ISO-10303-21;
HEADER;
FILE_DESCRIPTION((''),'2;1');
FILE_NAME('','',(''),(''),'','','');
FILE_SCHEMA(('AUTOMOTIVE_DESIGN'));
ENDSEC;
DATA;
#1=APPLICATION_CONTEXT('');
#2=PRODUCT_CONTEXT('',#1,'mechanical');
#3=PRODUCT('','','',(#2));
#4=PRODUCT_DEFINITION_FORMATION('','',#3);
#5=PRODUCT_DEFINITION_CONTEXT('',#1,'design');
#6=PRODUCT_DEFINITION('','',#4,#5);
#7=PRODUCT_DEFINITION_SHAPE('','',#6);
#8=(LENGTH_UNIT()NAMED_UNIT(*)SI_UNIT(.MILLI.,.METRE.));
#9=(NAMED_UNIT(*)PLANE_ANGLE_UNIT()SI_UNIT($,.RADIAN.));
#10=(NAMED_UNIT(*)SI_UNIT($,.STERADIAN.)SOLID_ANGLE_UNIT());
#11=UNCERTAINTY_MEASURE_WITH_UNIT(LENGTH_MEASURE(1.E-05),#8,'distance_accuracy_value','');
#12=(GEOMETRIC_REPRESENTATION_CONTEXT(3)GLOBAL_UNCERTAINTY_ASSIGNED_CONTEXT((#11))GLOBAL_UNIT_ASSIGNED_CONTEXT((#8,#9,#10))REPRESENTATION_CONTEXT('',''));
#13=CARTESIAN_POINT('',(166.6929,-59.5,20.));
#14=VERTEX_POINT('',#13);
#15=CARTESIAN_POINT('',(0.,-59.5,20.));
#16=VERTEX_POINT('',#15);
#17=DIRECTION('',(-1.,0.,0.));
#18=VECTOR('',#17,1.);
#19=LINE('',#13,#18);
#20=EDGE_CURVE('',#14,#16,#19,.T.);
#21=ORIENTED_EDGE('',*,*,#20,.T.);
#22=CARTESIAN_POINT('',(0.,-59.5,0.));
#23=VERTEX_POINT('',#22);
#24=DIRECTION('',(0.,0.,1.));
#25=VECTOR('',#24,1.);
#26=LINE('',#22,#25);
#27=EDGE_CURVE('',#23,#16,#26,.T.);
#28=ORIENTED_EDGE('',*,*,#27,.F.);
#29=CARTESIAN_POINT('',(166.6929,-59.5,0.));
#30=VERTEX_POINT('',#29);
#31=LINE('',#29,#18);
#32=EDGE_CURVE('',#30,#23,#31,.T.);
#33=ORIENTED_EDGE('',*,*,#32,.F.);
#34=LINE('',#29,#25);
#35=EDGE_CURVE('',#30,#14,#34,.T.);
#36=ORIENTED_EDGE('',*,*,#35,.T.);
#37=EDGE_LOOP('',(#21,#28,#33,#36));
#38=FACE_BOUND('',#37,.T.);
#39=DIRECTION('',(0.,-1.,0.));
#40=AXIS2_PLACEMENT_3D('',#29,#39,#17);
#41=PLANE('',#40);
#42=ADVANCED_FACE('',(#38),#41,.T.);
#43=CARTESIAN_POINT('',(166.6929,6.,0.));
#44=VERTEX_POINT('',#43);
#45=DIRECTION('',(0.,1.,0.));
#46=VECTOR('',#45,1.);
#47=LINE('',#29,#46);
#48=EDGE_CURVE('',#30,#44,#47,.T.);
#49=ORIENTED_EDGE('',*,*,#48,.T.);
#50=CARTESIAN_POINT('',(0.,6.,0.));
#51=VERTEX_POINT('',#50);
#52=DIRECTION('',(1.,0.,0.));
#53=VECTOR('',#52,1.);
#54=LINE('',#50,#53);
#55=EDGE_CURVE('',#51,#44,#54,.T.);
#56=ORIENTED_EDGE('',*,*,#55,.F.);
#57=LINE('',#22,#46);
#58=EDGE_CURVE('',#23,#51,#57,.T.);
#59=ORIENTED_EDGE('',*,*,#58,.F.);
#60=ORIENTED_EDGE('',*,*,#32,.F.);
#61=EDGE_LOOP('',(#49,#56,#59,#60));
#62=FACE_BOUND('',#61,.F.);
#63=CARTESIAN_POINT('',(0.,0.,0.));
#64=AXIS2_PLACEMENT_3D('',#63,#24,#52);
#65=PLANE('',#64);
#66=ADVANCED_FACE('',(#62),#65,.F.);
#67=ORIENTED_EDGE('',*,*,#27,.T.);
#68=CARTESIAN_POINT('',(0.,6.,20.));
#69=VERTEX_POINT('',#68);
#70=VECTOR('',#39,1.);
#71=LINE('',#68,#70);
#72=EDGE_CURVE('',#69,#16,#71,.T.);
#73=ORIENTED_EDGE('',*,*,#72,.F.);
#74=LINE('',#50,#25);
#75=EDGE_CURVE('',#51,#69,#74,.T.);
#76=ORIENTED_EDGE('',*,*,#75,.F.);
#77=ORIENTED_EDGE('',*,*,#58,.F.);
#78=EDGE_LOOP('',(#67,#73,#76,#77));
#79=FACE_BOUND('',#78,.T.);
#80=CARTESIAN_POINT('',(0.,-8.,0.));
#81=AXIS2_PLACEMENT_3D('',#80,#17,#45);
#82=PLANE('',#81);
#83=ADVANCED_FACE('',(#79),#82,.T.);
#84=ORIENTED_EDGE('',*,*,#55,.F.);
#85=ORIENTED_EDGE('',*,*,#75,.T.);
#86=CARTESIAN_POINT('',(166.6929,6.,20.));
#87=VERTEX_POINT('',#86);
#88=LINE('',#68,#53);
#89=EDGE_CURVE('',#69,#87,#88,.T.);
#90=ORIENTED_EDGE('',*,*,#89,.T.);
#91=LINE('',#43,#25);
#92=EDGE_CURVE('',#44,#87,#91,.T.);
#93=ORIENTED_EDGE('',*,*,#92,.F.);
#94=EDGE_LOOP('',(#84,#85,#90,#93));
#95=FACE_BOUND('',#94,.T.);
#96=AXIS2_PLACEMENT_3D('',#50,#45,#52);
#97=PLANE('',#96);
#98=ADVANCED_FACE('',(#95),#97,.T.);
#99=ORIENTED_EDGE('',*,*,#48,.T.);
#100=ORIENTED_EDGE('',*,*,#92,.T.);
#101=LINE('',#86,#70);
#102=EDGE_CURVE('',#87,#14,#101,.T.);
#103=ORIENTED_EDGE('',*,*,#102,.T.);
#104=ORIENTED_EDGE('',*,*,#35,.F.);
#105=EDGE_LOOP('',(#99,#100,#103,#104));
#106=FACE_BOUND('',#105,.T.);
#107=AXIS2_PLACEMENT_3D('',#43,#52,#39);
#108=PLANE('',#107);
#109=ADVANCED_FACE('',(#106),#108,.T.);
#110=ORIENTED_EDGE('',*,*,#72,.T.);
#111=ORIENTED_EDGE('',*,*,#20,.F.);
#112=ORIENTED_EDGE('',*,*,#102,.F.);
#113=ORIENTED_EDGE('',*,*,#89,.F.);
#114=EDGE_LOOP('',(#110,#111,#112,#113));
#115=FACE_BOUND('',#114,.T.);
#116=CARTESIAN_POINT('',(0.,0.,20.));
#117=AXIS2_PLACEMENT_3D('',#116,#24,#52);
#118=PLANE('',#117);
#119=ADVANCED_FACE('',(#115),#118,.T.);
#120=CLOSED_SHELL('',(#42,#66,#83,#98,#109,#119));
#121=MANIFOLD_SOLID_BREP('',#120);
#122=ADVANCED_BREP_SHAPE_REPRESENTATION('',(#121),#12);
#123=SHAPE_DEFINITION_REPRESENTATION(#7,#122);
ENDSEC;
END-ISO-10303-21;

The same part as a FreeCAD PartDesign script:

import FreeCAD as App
import Part
import Sketcher


def add_polygon(sketch, points):
    """Adds a closed chain of lines whose ends are joined by coincident constraints."""
    first, n = sketch.GeometryCount, len(points)
    for a, b in zip(points, points[1:] + points[:1]):
        sketch.addGeometry(Part.LineSegment(App.Vector(*a, 0), App.Vector(*b, 0)), False)
    for i in range(n):
        sketch.addConstraint(Sketcher.Constraint("Coincident", first + i, 2, first + (i + 1) % n, 1))

doc = App.newDocument("Part")
body = doc.addObject("PartDesign::Body", "Body")

sketch1 = body.newObject("Sketcher::SketchObject", "Sketch")
sketch1.AttachmentSupport = (doc.getObject("XY_Plane"), [""])
sketch1.MapMode = "FlatFace"
add_polygon(sketch1, [(166.6929, 6), (0, 6), (0, -59.5), (166.6929, -59.5)])
sketch1.addConstraint([
    Sketcher.Constraint("Horizontal", 0),
    Sketcher.Constraint("Vertical", 1),
    Sketcher.Constraint("Horizontal", 2),
    Sketcher.Constraint("Vertical", 3),
    Sketcher.Constraint("PointOnObject", 0, 2, -2),
    Sketcher.Constraint("DistanceY", 1, 2, 1, 1, 65.5),
    Sketcher.Constraint("DistanceY", -1, 1, 0, 2, 6.0),
    Sketcher.Constraint("DistanceX", 0, 2, 0, 1, 166.693),
])
pad1 = body.newObject("PartDesign::Pad", "Pad")
pad1.Profile = sketch1
pad1.Length = 20

doc.recompute()
